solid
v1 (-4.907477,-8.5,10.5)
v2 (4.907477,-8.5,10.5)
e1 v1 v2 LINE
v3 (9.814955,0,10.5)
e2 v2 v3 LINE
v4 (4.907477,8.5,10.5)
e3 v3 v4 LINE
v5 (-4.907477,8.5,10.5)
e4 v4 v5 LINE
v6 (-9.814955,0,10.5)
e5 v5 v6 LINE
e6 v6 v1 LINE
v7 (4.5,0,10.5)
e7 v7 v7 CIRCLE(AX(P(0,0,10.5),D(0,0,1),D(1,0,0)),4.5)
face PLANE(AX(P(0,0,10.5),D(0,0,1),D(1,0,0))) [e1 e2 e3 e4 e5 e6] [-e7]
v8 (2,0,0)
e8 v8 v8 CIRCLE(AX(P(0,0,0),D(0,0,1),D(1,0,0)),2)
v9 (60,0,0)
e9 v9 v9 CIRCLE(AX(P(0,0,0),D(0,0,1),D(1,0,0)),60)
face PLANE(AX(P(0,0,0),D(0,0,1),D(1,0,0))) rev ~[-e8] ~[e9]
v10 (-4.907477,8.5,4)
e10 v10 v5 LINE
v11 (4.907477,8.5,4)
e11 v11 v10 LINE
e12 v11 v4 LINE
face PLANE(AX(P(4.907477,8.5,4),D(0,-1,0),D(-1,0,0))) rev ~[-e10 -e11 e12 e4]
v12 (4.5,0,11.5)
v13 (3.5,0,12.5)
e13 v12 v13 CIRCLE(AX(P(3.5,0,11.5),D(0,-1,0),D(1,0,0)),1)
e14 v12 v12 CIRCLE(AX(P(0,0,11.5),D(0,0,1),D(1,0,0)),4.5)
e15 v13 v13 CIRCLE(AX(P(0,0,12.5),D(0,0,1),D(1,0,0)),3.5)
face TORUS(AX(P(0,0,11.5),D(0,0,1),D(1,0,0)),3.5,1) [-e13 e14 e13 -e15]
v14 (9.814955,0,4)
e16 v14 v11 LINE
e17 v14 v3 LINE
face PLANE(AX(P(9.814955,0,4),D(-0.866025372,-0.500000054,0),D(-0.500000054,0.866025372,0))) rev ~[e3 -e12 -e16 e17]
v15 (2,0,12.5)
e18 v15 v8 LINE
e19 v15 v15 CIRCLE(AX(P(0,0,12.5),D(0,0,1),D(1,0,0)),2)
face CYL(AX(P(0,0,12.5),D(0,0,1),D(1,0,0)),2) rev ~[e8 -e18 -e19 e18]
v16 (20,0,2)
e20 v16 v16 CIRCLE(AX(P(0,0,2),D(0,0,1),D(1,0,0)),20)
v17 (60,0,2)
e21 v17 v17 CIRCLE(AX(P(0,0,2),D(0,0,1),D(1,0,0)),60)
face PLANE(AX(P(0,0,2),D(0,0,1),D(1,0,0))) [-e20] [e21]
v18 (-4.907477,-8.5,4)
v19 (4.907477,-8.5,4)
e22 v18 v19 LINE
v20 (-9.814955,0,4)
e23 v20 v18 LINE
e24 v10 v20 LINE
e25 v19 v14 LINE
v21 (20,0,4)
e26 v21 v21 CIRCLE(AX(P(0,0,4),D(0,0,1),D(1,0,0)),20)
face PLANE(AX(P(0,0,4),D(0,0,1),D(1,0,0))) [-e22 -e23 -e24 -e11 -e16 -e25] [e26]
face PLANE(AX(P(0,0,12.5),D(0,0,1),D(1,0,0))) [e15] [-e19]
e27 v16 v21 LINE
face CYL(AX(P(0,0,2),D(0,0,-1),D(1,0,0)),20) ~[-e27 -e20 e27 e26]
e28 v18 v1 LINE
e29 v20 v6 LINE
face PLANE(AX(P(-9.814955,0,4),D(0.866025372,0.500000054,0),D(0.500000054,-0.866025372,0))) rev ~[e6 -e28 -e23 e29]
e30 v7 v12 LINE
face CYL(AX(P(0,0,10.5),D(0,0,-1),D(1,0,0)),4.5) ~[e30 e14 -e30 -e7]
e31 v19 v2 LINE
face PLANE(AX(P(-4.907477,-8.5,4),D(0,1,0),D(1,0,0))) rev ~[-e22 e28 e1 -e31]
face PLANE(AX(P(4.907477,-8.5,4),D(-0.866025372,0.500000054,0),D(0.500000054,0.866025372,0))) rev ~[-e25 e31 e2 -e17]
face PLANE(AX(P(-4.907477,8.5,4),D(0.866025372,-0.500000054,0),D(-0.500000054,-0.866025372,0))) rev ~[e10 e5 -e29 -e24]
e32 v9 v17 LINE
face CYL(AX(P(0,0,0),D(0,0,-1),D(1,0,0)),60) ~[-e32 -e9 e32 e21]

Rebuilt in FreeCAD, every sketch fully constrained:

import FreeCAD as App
import Part
import Sketcher
Q = App.Units.Quantity


def edges_at(feature, points):
    """Names of the edges that pass closest to the given points."""
    edges = feature.Shape.Edges
    near = lambda p: min(range(len(edges)), key=lambda i: edges[i].distToShape(Part.Vertex(*p))[0])
    return sorted({f"Edge{near(p) + 1}" for p in points})


def add_polygon(sketch, points):
    """Adds a closed chain of lines whose ends are joined by coincident constraints."""
    first, n = sketch.GeometryCount, len(points)
    for a, b in zip(points, points[1:] + points[:1]):
        sketch.addGeometry(Part.LineSegment(App.Vector(*a, 0), App.Vector(*b, 0)), False)
    for i in range(n):
        sketch.addConstraint(Sketcher.Constraint("Coincident", first + i, 2, first + (i + 1) % n, 1))

doc = App.newDocument("Part")
body = doc.addObject("PartDesign::Body", "Body")

# Sketch on XY plane
sketch1 = body.newObject("Sketcher::SketchObject", "Sketch")
sketch1.AttachmentSupport = (doc.getObject("XY_Plane"), [""])
sketch1.MapMode = "FlatFace"
sketch1.addGeometry(Part.Circle(App.Vector(0, 0, 0), App.Vector(0, 0, 1), 60), False)
sketch1.addConstraint([
    Sketcher.Constraint("Coincident", 0, 3, -1, 1),
    Sketcher.Constraint("Diameter", 0, Q("120 mm")),
])
pad1 = body.newObject("PartDesign::Pad", "Pad")
pad1.Profile = sketch1
pad1.Length = 2

# Sketch on XY plane
sketch2 = body.newObject("Sketcher::SketchObject", "Sketch001")
sketch2.AttachmentSupport = (doc.getObject("XY_Plane"), [""])
sketch2.MapMode = "FlatFace"
sketch2.AttachmentOffset = App.Placement(App.Vector(0, 0, 2), App.Rotation())
sketch2.addGeometry(Part.Circle(App.Vector(0, 0, 0), App.Vector(0, 0, 1), 20), False)
sketch2.addConstraint([
    Sketcher.Constraint("Coincident", 0, 3, -1, 1),
    Sketcher.Constraint("Diameter", 0, Q("40 mm")),
])
pad2 = body.newObject("PartDesign::Pad", "Pad001")
pad2.Profile = sketch2
pad2.Length = 2

# Sketch on XY plane
sketch3 = body.newObject("Sketcher::SketchObject", "Sketch002")
sketch3.AttachmentSupport = (doc.getObject("XY_Plane"), [""])
sketch3.MapMode = "FlatFace"
sketch3.AttachmentOffset = App.Placement(App.Vector(0, 0, 4), App.Rotation())
add_polygon(sketch3, [(5, 8), (-5, 8), (-10, 0), (-5, -8), (5, -8), (10, 0)])  # lines 0-5
sketch3.addConstraint([
    Sketcher.Constraint("Horizontal", 0),
    Sketcher.Constraint("Horizontal", 3),
    Sketcher.Constraint("Symmetric", 0, 2, 3, 2, -1, 1),
    Sketcher.Constraint("Symmetric", 1, 2, 4, 2, -1, 1),
    Sketcher.Constraint("PointOnObject", 1, 2, -1),
    Sketcher.Constraint("Parallel", 2, 5),
    Sketcher.Constraint("Vertical", 0, 2, 2, 2),
    Sketcher.Constraint("Angle", 1, Q("-120.000004 deg")),
    Sketcher.Constraint("DistanceY", 2, 2, 0, 2, Q("17 mm")),
    Sketcher.Constraint("DistanceX", 0, 2, 0, 1, Q("9.814954 mm")),
])
pad3 = body.newObject("PartDesign::Pad", "Pad002")
pad3.Profile = sketch3
pad3.Length = 6.5

# Sketch on XY plane
sketch4 = body.newObject("Sketcher::SketchObject", "Sketch003")
sketch4.AttachmentSupport = (doc.getObject("XY_Plane"), [""])
sketch4.MapMode = "FlatFace"
sketch4.AttachmentOffset = App.Placement(App.Vector(0, 0, 10.5), App.Rotation())
sketch4.addGeometry(Part.Circle(App.Vector(0, 0, 0), App.Vector(0, 0, 1), 4.5), False)
sketch4.addConstraint([
    Sketcher.Constraint("Coincident", 0, 3, -1, 1),
    Sketcher.Constraint("Diameter", 0, Q("9 mm")),
])
pad4 = body.newObject("PartDesign::Pad", "Pad003")
pad4.Profile = sketch4
pad4.Length = 2
doc.recompute()

fillet = body.newObject("PartDesign::Fillet", "Fillet")
fillet.Base = (pad4, edges_at(pad4, [(-4.5, 0, 12.5)]))
fillet.Radius = 1

# Sketch on XY plane
sketch5 = body.newObject("Sketcher::SketchObject", "Sketch004")
sketch5.AttachmentSupport = (doc.getObject("XY_Plane"), [""])
sketch5.MapMode = "FlatFace"
sketch5.AttachmentOffset = App.Placement(App.Vector(0, 0, 12.5), App.Rotation())
sketch5.addGeometry(Part.Circle(App.Vector(0, 0, 0), App.Vector(0, 0, 1), 2), False)
sketch5.addConstraint([
    Sketcher.Constraint("Coincident", 0, 3, -1, 1),
    Sketcher.Constraint("Diameter", 0, Q("4 mm")),
])
pocket1 = body.newObject("PartDesign::Pocket", "Pocket")
pocket1.Profile = sketch5
pocket1.Type = "ThroughAll"

doc.recompute()
